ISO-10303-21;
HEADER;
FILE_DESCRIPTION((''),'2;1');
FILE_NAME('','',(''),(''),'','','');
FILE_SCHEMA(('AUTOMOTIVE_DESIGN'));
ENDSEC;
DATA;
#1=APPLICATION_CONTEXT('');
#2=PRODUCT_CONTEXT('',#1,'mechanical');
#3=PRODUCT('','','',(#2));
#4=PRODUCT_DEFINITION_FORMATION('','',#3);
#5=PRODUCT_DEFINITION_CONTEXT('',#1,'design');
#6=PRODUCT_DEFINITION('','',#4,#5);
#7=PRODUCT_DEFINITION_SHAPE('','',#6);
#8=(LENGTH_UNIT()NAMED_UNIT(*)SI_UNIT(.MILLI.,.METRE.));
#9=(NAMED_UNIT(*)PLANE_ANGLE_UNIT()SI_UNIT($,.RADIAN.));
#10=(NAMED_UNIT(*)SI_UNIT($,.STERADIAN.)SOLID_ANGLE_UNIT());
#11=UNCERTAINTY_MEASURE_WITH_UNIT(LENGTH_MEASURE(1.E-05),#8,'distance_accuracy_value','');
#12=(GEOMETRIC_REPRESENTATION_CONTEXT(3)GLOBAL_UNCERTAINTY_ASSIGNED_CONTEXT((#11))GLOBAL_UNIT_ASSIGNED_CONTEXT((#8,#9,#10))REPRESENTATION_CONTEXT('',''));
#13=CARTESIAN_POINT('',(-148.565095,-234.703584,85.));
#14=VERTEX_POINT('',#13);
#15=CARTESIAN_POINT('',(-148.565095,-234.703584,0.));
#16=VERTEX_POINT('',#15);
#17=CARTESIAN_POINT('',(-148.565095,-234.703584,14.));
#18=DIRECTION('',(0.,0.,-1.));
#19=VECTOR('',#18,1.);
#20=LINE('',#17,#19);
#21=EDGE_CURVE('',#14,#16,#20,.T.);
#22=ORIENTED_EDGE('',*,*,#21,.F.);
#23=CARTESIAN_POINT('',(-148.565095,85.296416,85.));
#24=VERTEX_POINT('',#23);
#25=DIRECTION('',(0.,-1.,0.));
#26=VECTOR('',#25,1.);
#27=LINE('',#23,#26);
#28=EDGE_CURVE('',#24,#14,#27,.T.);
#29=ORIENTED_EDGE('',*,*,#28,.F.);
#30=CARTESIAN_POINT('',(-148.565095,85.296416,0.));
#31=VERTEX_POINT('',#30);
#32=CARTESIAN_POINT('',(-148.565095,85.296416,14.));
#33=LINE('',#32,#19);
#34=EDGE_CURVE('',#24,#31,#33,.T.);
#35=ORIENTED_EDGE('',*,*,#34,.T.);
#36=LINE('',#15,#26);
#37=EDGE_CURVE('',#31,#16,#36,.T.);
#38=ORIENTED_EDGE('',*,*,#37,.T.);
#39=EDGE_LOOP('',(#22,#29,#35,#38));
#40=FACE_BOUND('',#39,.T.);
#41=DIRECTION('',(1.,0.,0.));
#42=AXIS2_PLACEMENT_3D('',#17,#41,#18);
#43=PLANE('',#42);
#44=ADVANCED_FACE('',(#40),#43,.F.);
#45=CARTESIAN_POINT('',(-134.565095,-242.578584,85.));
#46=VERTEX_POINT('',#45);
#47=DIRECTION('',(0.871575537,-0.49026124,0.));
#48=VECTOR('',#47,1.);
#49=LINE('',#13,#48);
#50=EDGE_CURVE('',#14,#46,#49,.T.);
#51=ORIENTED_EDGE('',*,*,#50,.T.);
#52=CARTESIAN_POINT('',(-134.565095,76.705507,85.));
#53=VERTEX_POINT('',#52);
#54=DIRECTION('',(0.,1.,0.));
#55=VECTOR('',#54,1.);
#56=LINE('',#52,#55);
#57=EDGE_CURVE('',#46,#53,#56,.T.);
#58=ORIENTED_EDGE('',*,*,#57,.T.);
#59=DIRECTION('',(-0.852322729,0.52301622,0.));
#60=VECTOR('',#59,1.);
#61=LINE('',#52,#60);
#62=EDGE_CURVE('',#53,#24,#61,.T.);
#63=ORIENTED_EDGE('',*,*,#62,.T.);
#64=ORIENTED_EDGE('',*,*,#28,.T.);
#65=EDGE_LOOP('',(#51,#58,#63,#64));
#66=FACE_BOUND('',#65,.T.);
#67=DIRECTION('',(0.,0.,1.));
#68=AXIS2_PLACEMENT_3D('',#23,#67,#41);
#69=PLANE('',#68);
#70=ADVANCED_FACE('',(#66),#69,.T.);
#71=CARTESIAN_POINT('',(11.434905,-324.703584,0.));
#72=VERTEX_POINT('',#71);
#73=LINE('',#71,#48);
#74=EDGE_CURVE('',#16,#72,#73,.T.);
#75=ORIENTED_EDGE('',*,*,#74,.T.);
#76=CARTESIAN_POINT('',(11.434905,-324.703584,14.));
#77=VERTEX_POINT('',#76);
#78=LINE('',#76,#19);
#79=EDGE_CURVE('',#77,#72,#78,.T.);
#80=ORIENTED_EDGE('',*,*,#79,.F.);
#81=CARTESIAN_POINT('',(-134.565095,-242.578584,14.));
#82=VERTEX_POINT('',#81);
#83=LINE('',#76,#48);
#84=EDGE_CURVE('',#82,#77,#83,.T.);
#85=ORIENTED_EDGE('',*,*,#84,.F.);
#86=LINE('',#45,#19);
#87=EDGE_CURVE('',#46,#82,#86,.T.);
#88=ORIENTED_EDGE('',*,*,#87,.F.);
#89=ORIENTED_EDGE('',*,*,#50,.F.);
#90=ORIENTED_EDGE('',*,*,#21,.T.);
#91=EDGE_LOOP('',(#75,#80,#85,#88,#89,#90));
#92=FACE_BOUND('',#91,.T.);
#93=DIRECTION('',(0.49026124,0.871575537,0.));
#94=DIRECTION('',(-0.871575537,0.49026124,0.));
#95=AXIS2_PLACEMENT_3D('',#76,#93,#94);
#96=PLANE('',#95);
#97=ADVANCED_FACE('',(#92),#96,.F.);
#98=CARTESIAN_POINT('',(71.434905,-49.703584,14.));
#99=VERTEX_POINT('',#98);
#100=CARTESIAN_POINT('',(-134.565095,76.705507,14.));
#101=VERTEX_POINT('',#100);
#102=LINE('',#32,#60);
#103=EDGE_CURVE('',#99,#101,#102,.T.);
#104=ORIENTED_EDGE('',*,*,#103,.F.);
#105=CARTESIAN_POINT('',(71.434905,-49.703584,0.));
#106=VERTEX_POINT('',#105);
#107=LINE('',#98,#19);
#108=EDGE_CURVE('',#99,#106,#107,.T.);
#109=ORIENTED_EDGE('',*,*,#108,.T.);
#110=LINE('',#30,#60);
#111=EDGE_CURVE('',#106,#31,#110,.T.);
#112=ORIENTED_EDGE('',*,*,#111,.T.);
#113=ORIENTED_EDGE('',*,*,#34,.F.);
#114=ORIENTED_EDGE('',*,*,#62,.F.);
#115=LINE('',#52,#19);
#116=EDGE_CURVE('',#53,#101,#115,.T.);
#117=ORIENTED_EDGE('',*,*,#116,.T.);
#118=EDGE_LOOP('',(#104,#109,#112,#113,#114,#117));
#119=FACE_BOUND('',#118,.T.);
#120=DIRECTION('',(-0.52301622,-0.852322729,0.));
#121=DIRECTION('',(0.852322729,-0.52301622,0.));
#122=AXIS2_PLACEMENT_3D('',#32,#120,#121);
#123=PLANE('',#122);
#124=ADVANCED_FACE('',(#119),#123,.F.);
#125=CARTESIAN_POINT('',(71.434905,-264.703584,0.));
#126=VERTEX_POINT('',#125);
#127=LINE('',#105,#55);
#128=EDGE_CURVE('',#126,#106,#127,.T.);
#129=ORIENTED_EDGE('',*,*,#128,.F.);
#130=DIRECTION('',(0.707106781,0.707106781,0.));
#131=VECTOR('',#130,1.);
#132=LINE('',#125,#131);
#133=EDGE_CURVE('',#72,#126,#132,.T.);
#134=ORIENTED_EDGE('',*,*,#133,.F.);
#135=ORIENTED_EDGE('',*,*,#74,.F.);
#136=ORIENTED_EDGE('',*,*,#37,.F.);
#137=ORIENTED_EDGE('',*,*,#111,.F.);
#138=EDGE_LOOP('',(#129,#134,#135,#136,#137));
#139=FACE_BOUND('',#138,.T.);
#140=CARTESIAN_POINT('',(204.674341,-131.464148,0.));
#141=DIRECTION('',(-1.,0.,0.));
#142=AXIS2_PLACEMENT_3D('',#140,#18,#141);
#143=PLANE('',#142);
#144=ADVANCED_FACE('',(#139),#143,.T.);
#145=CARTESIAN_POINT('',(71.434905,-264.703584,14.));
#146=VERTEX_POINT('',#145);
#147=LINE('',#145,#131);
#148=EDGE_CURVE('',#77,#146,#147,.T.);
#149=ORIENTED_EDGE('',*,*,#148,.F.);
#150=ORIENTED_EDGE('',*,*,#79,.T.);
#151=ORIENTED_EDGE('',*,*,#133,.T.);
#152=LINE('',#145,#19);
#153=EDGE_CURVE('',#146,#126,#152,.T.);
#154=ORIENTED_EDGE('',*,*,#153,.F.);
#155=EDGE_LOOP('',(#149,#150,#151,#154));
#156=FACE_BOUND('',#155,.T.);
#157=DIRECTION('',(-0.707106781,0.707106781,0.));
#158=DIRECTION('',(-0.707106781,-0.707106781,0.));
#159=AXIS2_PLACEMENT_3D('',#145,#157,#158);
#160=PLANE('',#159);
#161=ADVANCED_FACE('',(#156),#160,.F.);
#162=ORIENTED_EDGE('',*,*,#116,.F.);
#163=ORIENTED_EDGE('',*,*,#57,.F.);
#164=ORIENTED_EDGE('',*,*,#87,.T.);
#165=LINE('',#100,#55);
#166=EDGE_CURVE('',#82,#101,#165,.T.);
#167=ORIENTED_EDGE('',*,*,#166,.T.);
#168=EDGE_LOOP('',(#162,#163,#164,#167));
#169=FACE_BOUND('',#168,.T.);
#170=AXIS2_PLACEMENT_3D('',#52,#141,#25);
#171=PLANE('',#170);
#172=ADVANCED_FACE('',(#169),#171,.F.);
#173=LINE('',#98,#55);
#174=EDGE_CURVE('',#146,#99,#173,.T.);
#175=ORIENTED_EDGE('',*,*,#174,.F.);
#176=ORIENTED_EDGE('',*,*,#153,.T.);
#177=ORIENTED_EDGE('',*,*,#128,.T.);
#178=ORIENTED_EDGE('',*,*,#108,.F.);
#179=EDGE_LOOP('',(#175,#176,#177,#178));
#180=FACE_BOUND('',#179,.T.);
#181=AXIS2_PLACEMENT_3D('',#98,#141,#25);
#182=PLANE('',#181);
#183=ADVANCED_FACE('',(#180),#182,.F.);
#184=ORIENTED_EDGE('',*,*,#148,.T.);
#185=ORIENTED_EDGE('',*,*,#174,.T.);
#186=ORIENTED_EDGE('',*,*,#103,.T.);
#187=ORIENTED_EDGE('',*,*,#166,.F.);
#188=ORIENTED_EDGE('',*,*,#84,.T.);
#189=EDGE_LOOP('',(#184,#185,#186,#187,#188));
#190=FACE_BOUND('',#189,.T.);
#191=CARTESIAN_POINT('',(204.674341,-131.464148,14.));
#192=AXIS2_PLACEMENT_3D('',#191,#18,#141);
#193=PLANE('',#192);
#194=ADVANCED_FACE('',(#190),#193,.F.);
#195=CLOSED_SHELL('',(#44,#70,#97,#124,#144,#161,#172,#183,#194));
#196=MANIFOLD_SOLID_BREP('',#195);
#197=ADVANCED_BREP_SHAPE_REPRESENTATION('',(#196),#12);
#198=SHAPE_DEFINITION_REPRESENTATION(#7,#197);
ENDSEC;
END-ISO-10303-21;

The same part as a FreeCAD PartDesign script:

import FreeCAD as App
import Part
import Sketcher
from FreeCAD import Vector
Q = App.Units.Quantity

doc = App.newDocument("Part")
body = doc.addObject("PartDesign::Body", "Body")

sketch1 = doc.addObject("Sketcher::SketchObject", "Sketch")
body.addObject(sketch1)
sketch1.AttachmentSupport = (doc.XY_Plane, [""])
sketch1.MapMode = "FlatFace"
sketch1.addGeometry(Part.LineSegment(Vector(71.434905, -264.703584, 0), Vector(71.434905, -49.703584, 0)), False)
sketch1.addGeometry(Part.LineSegment(Vector(71.434905, -49.703584, 0), Vector(-148.565095, 85.296416, 0)), False)
sketch1.addGeometry(Part.LineSegment(Vector(-148.565095, 85.296416, 0), Vector(-148.565095, -234.703584, 0)), False)
sketch1.addGeometry(Part.LineSegment(Vector(-148.565095, -234.703584, 0), Vector(11.434905, -324.703584, 0)), False)
sketch1.addGeometry(Part.LineSegment(Vector(11.434905, -324.703584, 0), Vector(71.434905, -264.703584, 0)), False)
sketch1.addConstraint(Sketcher.Constraint("Coincident", 0, 2, 1, 1))
sketch1.addConstraint(Sketcher.Constraint("Coincident", 1, 2, 2, 1))
sketch1.addConstraint(Sketcher.Constraint("Coincident", 2, 2, 3, 1))
sketch1.addConstraint(Sketcher.Constraint("Coincident", 3, 2, 4, 1))
sketch1.addConstraint(Sketcher.Constraint("Coincident", 4, 2, 0, 1))
sketch1.addConstraint(Sketcher.Constraint("Vertical", 0))
sketch1.addConstraint(Sketcher.Constraint("Vertical", 2))
sketch1.addConstraint(Sketcher.Constraint("DistanceY", 0, 1, 0, 2, 215.0))
sketch1.addConstraint(Sketcher.Constraint("DistanceY", 2, 2, 2, 1, 320.0))
sketch1.addConstraint(Sketcher.Constraint("Angle", 4, Q("45 deg")))
sketch1.addConstraint(Sketcher.Constraint("DistanceX", 1, 2, 0, 2, 220.0))
sketch1.addConstraint(Sketcher.Constraint("DistanceY", 0, 2, 1, 2, 135.0))
sketch1.addConstraint(Sketcher.Constraint("DistanceX", 2, 2, 3, 2, 160.0))
sketch1.addConstraint(Sketcher.Constraint("DistanceX", -1, 1, 0, 2, 71.434905))
sketch1.addConstraint(Sketcher.Constraint("DistanceY", 0, 2, -1, 1, 49.703584))
pad1 = doc.addObject("PartDesign::Pad", "Pad")
body.addObject(pad1)
pad1.Profile = sketch1
pad1.Length = 14

sketch2 = doc.addObject("Sketcher::SketchObject", "Sketch001")
body.addObject(sketch2)
sketch2.AttachmentSupport = (doc.XY_Plane, [""])
sketch2.MapMode = "FlatFace"
sketch2.AttachmentOffset = App.Placement(Vector(0, 0, 14), App.Rotation())
sketch2.addGeometry(Part.LineSegment(Vector(-134.565095, -242.578584, 0), Vector(-134.565095, 76.705507, 0)), False)
sketch2.addGeometry(Part.LineSegment(Vector(-134.565095, 76.705507, 0), Vector(-148.565095, 85.296416, 0)), False)
sketch2.addGeometry(Part.LineSegment(Vector(-148.565095, 85.296416, 0), Vector(-148.565095, -234.703584, 0)), False)
sketch2.addGeometry(Part.LineSegment(Vector(-148.565095, -234.703584, 0), Vector(-134.565095, -242.578584, 0)), False)
sketch2.addConstraint(Sketcher.Constraint("Coincident", 0, 2, 1, 1))
sketch2.addConstraint(Sketcher.Constraint("Coincident", 1, 2, 2, 1))
sketch2.addConstraint(Sketcher.Constraint("Coincident", 2, 2, 3, 1))
sketch2.addConstraint(Sketcher.Constraint("Coincident", 3, 2, 0, 1))
sketch2.addConstraint(Sketcher.Constraint("Vertical", 0))
sketch2.addConstraint(Sketcher.Constraint("Vertical", 2))
sketch2.addConstraint(Sketcher.Constraint("DistanceY", 2, 2, 2, 1, 320.0))
sketch2.addConstraint(Sketcher.Constraint("DistanceX", 1, 2, 0, 2, 14.0))
sketch2.addConstraint(Sketcher.Constraint("DistanceY", 3, 2, 2, 2, 7.875))
sketch2.addConstraint(Sketcher.Constraint("DistanceY", 0, 1, 0, 2, 319.284091))
sketch2.addConstraint(Sketcher.Constraint("DistanceX", 0, 2, -1, 1, 134.565095))
sketch2.addConstraint(Sketcher.Constraint("DistanceY", -1, 1, 0, 2, 76.705507))
pad2 = doc.addObject("PartDesign::Pad", "Pad001")
body.addObject(pad2)
pad2.Profile = sketch2
pad2.Length = 71

doc.recompute()
